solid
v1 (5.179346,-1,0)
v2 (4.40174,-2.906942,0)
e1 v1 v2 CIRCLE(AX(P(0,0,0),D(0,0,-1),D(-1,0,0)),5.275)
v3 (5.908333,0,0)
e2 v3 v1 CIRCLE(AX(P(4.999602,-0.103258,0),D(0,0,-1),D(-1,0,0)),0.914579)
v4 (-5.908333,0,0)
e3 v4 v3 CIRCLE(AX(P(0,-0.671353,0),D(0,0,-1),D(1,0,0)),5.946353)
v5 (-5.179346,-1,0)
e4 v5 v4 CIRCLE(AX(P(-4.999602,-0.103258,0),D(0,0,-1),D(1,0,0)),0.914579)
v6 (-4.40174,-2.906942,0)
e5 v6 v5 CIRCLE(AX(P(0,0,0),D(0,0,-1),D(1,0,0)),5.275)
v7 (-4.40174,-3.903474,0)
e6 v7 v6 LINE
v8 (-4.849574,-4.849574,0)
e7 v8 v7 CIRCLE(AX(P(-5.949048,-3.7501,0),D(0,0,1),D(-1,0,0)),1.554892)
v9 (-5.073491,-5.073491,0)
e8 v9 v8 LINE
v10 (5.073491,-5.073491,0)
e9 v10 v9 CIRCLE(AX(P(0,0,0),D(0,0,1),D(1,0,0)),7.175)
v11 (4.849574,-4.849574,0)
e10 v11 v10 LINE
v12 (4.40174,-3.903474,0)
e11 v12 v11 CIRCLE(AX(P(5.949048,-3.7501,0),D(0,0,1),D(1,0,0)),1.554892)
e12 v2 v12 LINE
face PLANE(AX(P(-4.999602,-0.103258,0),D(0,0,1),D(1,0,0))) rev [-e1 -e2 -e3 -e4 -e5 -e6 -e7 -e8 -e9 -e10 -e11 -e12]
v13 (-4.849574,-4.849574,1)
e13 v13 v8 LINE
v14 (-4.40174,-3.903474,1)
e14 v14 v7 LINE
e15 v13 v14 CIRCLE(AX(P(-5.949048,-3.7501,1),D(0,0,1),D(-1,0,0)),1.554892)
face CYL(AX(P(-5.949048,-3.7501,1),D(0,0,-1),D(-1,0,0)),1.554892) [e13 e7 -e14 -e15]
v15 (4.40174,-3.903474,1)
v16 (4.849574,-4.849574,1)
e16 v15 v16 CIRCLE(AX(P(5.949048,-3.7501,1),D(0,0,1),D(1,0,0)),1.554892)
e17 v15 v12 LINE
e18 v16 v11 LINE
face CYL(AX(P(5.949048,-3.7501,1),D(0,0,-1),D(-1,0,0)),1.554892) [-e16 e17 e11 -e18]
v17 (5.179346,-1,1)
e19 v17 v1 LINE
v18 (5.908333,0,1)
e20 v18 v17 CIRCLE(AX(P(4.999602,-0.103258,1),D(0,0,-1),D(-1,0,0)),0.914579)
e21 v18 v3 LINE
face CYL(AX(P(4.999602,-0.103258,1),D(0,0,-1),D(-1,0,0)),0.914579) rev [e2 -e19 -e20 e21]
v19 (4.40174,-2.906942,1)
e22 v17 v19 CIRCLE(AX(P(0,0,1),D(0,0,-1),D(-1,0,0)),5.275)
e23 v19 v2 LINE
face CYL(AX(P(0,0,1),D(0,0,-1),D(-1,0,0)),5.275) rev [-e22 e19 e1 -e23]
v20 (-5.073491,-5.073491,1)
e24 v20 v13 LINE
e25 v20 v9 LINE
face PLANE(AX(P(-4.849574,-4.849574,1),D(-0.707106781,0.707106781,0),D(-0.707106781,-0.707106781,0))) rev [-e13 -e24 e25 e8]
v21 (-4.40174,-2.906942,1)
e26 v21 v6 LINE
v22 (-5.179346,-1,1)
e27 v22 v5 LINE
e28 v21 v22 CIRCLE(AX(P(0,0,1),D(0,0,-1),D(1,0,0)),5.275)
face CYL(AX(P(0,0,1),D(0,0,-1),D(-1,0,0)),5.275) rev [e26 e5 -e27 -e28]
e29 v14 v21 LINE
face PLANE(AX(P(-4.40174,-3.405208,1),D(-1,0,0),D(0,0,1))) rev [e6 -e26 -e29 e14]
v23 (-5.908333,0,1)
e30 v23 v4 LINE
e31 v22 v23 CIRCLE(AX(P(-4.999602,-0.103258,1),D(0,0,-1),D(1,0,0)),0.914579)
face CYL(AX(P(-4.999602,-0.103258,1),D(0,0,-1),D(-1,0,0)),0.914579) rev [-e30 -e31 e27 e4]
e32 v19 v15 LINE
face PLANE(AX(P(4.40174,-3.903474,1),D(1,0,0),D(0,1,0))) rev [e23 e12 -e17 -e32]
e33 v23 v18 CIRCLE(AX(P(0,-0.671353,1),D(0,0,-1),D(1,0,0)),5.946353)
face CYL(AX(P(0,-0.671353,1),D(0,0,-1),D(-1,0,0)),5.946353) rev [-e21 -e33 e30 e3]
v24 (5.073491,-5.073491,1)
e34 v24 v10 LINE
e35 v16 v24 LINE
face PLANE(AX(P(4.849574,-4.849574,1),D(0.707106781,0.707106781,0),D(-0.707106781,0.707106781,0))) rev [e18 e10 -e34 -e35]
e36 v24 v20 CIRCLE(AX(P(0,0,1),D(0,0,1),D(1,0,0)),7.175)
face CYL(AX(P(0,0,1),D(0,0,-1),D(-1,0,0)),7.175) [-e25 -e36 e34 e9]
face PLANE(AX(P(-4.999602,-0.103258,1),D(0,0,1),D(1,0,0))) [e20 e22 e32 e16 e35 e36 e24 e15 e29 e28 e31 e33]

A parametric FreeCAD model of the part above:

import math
import FreeCAD as App
import Part
import Sketcher
from FreeCAD import Vector
Q = App.Units.Quantity

doc = App.newDocument("Part")
body = doc.addObject("PartDesign::Body", "Body")

sketch1 = body.newObject("Sketcher::SketchObject", "Sketch")
sketch1.AttachmentSupport = (doc.getObject("XY_Plane"), [""])
sketch1.MapMode = "FlatFace"
sketch1.addGeometry(Part.LineSegment(Vector(-4.4, -3.9, 0), Vector(-4.4, -2.91, 0)), False)
sketch1.addGeometry(Part.ArcOfCircle(Part.Circle(Vector(0, 0, 0), Vector(0, 0, 1), 5.27), math.radians(-169), math.radians(-147)), False)
sketch1.addGeometry(Part.ArcOfCircle(Part.Circle(Vector(-5, -0.1, 0), Vector(0, 0, 1), 0.91), math.radians(174), math.radians(259)), False)
sketch1.addGeometry(Part.ArcOfCircle(Part.Circle(Vector(0, -0.67, 0), Vector(0, 0, 1), 5.95), math.radians(6), math.radians(174)), False)
sketch1.addGeometry(Part.ArcOfCircle(Part.Circle(Vector(5, -0.1, 0), Vector(0, 0, 1), 0.91), math.radians(-79), math.radians(6)), False)
sketch1.addGeometry(Part.ArcOfCircle(Part.Circle(Vector(0, 0, 0), Vector(0, 0, 1), 5.27), math.radians(-33), math.radians(-11)), False)
sketch1.addGeometry(Part.LineSegment(Vector(4.4, -2.91, 0), Vector(4.4, -3.9, 0)), False)
sketch1.addGeometry(Part.ArcOfCircle(Part.Circle(Vector(5.95, -3.75, 0), Vector(0, 0, 1), 1.55), math.radians(-174), math.radians(-135)), False)
sketch1.addGeometry(Part.LineSegment(Vector(4.85, -4.85, 0), Vector(5.07, -5.07, 0)), False)
sketch1.addGeometry(Part.ArcOfCircle(Part.Circle(Vector(0, 0, 0), Vector(0, 0, 1), 7.17), math.radians(-45), math.radians(225)), False)
sketch1.addGeometry(Part.LineSegment(Vector(-5.07, -5.07, 0), Vector(-4.85, -4.85, 0)), False)
sketch1.addGeometry(Part.ArcOfCircle(Part.Circle(Vector(-5.95, -3.75, 0), Vector(0, 0, 1), 1.55), math.radians(-45), math.radians(-6)), False)
sketch1.addConstraint(Sketcher.Constraint("Coincident", 0, 2, 1, 2))
sketch1.addConstraint(Sketcher.Constraint("Coincident", 1, 1, 2, 2))
sketch1.addConstraint(Sketcher.Constraint("Tangent", 2, 1, 3, 2))
sketch1.addConstraint(Sketcher.Constraint("Tangent", 3, 1, 4, 2))
sketch1.addConstraint(Sketcher.Constraint("Coincident", 4, 1, 5, 2))
sketch1.addConstraint(Sketcher.Constraint("Coincident", 5, 1, 6, 1))
sketch1.addConstraint(Sketcher.Constraint("Coincident", 6, 2, 7, 1))
sketch1.addConstraint(Sketcher.Constraint("Tangent", 7, 2, 8, 1))
sketch1.addConstraint(Sketcher.Constraint("Coincident", 8, 2, 9, 1))
sketch1.addConstraint(Sketcher.Constraint("Coincident", 9, 2, 10, 1))
sketch1.addConstraint(Sketcher.Constraint("Tangent", 10, 2, 11, 1))
sketch1.addConstraint(Sketcher.Constraint("Coincident", 11, 2, 0, 1))
sketch1.addConstraint(Sketcher.Constraint("Vertical", 0))
sketch1.addConstraint(Sketcher.Constraint("Vertical", 6))
sketch1.addConstraint(Sketcher.Constraint("Coincident", 1, 3, -1, 1))
sketch1.addConstraint(Sketcher.Constraint("Coincident", 5, 3, -1, 1))
sketch1.addConstraint(Sketcher.Constraint("Coincident", 9, 3, -1, 1))
sketch1.addConstraint(Sketcher.Constraint("Equal", 2, 4))
sketch1.addConstraint(Sketcher.Constraint("Equal", 1, 5))
sketch1.addConstraint(Sketcher.Constraint("Equal", 7, 11))
sketch1.addConstraint(Sketcher.Constraint("Symmetric", 2, 1, 3, 1, -1, 1))
sketch1.addConstraint(Sketcher.Constraint("Symmetric", 7, 3, 11, 3, -2))
sketch1.addConstraint(Sketcher.Constraint("PointOnObject", 3, 3, -2))
sketch1.addConstraint(Sketcher.Constraint("Perpendicular", 8, 10))
sketch1.addConstraint(Sketcher.Constraint("Horizontal", 0, 2, 5, 1))
sketch1.addConstraint(Sketcher.Constraint("Horizontal", 8, 2, 9, 2))
sketch1.addConstraint(Sketcher.Constraint("DistanceY", 1, 1, -1, 1, Q("1 mm")))
sketch1.addConstraint(Sketcher.Constraint("Radius", 1, Q("5.275 mm")))
sketch1.addConstraint(Sketcher.Constraint("Radius", 9, Q("7.175 mm")))
sketch1.addConstraint(Sketcher.Constraint("Radius", 2, Q("0.914579 mm")))
sketch1.addConstraint(Sketcher.Constraint("Radius", 7, Q("1.554892 mm")))
sketch1.addConstraint(Sketcher.Constraint("Radius", 3, Q("5.946353 mm")))
sketch1.addConstraint(Sketcher.Constraint("DistanceY", 0, 1, 0, 2, Q("0.996532 mm")))
sketch1.addConstraint(Sketcher.Constraint("DistanceY", 7, 3, -1, 1, Q("3.7501 mm")))
sketch1.addConstraint(Sketcher.Constraint("DistanceY", 7, 2, 6, 2, Q("0.9461 mm")))
pad1 = body.newObject("PartDesign::Pad", "Pad")
pad1.Profile = sketch1
pad1.Length = 1

doc.recompute()
